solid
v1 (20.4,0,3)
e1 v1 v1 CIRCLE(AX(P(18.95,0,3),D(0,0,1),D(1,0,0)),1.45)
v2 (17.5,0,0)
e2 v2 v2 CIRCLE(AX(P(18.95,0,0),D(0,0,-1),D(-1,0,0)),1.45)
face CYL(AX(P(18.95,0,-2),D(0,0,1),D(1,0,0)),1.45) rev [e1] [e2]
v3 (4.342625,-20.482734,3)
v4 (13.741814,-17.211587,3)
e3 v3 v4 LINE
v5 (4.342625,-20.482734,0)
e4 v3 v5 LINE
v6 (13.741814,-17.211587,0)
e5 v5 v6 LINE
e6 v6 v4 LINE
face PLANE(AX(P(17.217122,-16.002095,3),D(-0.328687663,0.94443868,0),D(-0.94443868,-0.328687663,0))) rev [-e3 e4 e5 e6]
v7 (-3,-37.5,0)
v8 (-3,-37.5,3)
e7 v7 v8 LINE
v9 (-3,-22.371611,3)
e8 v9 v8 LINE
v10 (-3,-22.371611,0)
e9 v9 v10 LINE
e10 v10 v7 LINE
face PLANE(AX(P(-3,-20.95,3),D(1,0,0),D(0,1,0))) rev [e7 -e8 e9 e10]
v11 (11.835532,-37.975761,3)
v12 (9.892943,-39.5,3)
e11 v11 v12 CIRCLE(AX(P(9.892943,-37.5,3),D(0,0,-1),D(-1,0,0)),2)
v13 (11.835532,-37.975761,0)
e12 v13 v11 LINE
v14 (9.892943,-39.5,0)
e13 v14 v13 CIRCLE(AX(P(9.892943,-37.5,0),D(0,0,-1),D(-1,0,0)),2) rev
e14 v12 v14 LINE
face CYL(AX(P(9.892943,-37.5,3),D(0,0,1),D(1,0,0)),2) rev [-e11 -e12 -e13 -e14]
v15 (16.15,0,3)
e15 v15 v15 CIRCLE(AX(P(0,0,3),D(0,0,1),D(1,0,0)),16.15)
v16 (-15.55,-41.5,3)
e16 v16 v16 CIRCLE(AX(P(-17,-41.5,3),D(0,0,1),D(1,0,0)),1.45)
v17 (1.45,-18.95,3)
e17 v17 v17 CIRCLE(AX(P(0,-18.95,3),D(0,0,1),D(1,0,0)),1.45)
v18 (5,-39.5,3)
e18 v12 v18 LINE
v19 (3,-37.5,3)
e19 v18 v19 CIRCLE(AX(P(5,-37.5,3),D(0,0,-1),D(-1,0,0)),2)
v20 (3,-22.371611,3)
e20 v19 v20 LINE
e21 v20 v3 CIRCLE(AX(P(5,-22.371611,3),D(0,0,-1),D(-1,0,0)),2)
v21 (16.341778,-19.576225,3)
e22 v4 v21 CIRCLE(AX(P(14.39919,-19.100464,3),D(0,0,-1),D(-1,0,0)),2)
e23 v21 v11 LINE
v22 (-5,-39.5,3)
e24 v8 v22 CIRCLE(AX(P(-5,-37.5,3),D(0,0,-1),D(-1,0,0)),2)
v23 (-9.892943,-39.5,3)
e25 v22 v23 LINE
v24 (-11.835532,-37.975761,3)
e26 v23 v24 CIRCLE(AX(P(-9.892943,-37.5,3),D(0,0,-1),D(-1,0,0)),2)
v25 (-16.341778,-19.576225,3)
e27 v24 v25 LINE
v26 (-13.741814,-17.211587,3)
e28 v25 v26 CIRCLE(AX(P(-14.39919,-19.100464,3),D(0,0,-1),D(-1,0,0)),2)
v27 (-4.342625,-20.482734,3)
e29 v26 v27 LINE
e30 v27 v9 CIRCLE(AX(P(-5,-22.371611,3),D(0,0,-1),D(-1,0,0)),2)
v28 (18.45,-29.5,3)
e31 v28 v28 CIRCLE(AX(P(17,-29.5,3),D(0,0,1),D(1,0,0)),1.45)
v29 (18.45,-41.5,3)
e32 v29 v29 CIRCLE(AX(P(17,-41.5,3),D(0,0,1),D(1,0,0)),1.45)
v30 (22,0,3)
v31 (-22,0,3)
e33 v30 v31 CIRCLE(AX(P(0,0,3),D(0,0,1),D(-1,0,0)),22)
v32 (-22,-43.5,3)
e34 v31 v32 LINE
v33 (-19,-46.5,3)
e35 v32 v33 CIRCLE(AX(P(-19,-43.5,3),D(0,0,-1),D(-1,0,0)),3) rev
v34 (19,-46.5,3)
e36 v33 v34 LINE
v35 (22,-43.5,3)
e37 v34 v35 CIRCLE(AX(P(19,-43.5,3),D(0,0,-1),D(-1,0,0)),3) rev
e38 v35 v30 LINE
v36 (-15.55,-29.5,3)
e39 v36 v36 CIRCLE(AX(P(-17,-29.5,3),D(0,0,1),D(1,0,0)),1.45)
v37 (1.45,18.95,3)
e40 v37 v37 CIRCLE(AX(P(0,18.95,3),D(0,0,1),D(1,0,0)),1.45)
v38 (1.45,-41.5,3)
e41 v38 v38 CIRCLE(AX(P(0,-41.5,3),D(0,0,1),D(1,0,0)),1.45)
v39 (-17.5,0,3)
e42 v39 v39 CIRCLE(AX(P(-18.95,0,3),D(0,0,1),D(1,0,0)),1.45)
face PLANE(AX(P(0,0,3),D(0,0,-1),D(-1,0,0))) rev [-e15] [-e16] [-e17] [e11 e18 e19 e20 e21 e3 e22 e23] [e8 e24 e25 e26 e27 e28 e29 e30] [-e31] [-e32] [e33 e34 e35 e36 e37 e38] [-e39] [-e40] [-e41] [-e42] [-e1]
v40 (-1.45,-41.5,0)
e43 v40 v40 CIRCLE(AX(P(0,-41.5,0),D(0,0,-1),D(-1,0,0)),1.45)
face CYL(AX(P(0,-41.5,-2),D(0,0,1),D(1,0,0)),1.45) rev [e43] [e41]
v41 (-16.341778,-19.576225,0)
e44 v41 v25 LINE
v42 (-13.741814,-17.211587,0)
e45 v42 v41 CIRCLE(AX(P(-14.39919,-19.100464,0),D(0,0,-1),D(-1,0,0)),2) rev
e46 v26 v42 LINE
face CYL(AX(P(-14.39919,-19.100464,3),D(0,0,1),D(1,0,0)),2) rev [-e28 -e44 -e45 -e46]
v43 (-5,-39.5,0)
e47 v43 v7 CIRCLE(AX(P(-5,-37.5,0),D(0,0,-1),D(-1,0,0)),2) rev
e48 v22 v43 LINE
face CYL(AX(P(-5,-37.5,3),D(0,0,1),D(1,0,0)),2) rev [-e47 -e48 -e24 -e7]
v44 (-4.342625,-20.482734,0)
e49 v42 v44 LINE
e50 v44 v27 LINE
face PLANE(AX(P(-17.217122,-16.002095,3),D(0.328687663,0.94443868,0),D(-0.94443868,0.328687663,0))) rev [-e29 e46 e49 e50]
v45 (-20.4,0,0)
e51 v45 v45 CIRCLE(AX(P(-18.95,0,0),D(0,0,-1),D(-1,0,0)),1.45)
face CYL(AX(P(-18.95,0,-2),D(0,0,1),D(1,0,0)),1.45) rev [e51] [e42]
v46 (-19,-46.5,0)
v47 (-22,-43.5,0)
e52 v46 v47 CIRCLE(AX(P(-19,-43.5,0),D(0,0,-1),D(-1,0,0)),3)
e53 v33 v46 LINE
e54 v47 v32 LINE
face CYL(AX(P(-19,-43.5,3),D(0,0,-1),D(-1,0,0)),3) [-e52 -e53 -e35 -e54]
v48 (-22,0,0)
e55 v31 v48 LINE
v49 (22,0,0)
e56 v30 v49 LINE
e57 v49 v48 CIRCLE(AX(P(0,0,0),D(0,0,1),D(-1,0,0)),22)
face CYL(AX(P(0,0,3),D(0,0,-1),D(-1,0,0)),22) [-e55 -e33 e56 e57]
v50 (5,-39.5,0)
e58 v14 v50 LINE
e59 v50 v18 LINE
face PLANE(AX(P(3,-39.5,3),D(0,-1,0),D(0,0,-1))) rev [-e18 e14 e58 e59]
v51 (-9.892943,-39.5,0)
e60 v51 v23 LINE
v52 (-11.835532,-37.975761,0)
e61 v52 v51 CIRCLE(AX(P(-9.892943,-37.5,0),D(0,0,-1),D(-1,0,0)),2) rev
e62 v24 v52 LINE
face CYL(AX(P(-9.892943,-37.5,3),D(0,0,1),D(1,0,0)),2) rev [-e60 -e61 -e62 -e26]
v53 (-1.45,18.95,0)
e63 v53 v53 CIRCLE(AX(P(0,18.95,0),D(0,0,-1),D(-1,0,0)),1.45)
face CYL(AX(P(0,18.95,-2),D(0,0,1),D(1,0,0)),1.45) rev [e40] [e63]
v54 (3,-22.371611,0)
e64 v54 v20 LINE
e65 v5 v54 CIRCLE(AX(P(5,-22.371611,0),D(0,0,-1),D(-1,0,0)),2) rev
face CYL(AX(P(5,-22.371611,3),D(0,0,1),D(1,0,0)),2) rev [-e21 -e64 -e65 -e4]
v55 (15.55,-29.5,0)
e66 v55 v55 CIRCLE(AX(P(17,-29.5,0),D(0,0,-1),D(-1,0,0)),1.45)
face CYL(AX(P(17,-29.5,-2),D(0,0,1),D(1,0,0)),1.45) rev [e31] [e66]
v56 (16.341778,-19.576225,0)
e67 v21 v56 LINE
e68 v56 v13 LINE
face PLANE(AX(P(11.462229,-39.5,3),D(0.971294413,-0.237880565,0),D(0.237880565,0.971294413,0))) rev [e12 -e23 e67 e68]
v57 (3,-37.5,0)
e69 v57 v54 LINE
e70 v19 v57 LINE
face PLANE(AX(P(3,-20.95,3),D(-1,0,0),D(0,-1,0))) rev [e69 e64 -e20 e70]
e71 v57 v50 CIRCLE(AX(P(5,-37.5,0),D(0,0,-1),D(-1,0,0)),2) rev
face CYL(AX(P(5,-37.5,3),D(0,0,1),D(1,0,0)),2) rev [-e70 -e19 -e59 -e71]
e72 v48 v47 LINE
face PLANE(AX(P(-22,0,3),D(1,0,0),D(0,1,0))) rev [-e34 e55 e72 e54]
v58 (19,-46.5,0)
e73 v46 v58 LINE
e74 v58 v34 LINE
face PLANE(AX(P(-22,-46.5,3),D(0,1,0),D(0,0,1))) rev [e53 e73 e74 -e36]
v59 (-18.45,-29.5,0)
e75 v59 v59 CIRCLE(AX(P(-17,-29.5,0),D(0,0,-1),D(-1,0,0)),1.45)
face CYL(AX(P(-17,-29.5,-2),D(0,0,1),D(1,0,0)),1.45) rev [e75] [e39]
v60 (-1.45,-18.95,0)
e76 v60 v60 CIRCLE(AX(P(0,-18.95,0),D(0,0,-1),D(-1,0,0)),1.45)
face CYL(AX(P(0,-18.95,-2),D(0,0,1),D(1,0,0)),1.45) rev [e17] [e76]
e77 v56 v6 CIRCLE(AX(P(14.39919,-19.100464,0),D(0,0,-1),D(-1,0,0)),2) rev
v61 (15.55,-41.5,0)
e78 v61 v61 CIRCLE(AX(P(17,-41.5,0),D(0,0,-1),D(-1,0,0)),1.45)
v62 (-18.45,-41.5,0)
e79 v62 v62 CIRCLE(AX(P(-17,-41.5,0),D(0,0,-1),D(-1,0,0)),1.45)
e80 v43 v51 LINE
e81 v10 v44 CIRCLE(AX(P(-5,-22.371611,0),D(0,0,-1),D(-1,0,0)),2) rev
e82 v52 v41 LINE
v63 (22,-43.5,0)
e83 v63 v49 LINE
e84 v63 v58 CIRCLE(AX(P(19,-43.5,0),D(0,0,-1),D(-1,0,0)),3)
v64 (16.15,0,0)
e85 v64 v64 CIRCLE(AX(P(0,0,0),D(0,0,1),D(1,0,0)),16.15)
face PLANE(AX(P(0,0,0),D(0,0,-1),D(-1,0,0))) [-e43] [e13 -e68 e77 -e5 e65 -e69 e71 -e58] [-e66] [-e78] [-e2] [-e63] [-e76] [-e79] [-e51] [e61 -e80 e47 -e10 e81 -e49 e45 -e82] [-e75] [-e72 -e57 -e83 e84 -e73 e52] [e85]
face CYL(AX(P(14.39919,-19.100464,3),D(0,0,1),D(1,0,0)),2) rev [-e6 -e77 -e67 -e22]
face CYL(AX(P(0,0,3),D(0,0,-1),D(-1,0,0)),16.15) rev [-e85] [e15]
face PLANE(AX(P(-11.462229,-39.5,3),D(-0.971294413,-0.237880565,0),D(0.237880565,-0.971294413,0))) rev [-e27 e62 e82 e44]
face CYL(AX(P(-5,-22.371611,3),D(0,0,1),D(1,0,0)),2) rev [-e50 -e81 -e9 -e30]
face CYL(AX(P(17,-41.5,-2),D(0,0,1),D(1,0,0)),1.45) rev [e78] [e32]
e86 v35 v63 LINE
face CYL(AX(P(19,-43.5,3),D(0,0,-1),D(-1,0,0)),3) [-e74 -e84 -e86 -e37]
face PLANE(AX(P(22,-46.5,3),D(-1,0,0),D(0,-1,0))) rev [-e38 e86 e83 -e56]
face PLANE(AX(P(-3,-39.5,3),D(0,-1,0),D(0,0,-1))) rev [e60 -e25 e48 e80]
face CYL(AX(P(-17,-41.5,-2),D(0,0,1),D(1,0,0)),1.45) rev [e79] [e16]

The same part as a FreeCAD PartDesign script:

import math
import FreeCAD as App
import Part
import Sketcher

V = App.Vector


def edges_at(feature, points):
    """Names of the edges that pass closest to the given points."""
    edges = feature.Shape.Edges
    near = lambda p: min(range(len(edges)), key=lambda i: edges[i].distToShape(Part.Vertex(*p))[0])
    return sorted({f"Edge{near(p) + 1}" for p in points})


def add_polygon(sketch, points):
    """Adds a closed chain of lines whose ends are joined by coincident constraints."""
    first, n = sketch.GeometryCount, len(points)
    for a, b in zip(points, points[1:] + points[:1]):
        sketch.addGeometry(Part.LineSegment(App.Vector(*a, 0), App.Vector(*b, 0)), False)
    for i in range(n):
        sketch.addConstraint(Sketcher.Constraint("Coincident", first + i, 2, first + (i + 1) % n, 1))

doc = App.newDocument("Part")
body = doc.addObject("PartDesign::Body", "Body")

# Sketch on XY plane
sketch1 = body.newObject("Sketcher::SketchObject", "Sketch")
sketch1.AttachmentSupport = (doc.getObject("XY_Plane"), [""])
sketch1.MapMode = "FlatFace"
sketch1.addGeometry(Part.LineSegment(V(-22, 0, 0), V(-22, -46, 0)), False)
sketch1.addGeometry(Part.LineSegment(V(-22, -46, 0), V(22, -46, 0)), False)
sketch1.addGeometry(Part.LineSegment(V(22, -46, 0), V(22, 0, 0)), False)
sketch1.addGeometry(Part.ArcOfCircle(Part.Circle(V(0, 0, 0), V(0, 0, 1), 22), math.radians(0), math.radians(180)), False)
sketch1.addGeometry(Part.Circle(V(0, 0, 0), V(0, 0, 1), 16), False)
sketch1.addConstraint(Sketcher.Constraint("Coincident", 0, 2, 1, 1))
sketch1.addConstraint(Sketcher.Constraint("Coincident", 1, 2, 2, 1))
sketch1.addConstraint(Sketcher.Constraint("Tangent", 2, 2, 3, 1))
sketch1.addConstraint(Sketcher.Constraint("Tangent", 3, 2, 0, 1))
sketch1.addConstraint(Sketcher.Constraint("Vertical", 0))
sketch1.addConstraint(Sketcher.Constraint("Horizontal", 1))
sketch1.addConstraint(Sketcher.Constraint("Vertical", 2))
sketch1.addConstraint(Sketcher.Constraint("Coincident", 3, 3, -1, 1))
sketch1.addConstraint(Sketcher.Constraint("Coincident", 4, 3, -1, 1))
sketch1.addConstraint(Sketcher.Constraint("Radius", 3, 22.0))
sketch1.addConstraint(Sketcher.Constraint("Diameter", 4, 32.3))
sketch1.addConstraint(Sketcher.Constraint("DistanceY", 0, 2, 0, 1, 46.5))
pad1 = body.newObject("PartDesign::Pad", "Pad")
pad1.Profile = sketch1
pad1.Length = 3

# Sketch on XY plane
sketch2 = body.newObject("Sketcher::SketchObject", "Sketch001")
sketch2.AttachmentSupport = (doc.getObject("XY_Plane"), [""])
sketch2.MapMode = "FlatFace"
sketch2.AttachmentOffset = App.Placement(V(0, 0, 3), App.Rotation())
sketch2.addGeometry(Part.Circle(V(0, -41.5, 0), V(0, 0, 1), 1.4), False)
sketch2.addGeometry(Part.Circle(V(17, -41.5, 0), V(0, 0, 1), 1.4), False)
sketch2.addGeometry(Part.Circle(V(-17, -41.5, 0), V(0, 0, 1), 1.4), False)
sketch2.addGeometry(Part.Circle(V(0, 18.9, 0), V(0, 0, 1), 1.4), False)
sketch2.addGeometry(Part.Circle(V(18.9, 0, 0), V(0, 0, 1), 1.4), False)
sketch2.addGeometry(Part.Circle(V(0, -18.9, 0), V(0, 0, 1), 1.4), False)
sketch2.addGeometry(Part.Circle(V(-18.9, 0, 0), V(0, 0, 1), 1.4), False)
sketch2.addGeometry(Part.Circle(V(-17, -29.5, 0), V(0, 0, 1), 1.4), False)
sketch2.addGeometry(Part.Circle(V(17, -29.5, 0), V(0, 0, 1), 1.4), False)
sketch2.addConstraint(Sketcher.Constraint("Equal", 0, 1))
sketch2.addConstraint(Sketcher.Constraint("Equal", 1, 2))
sketch2.addConstraint(Sketcher.Constraint("Equal", 2, 3))
sketch2.addConstraint(Sketcher.Constraint("Equal", 3, 4))
sketch2.addConstraint(Sketcher.Constraint("Equal", 4, 5))
sketch2.addConstraint(Sketcher.Constraint("Equal", 5, 6))
sketch2.addConstraint(Sketcher.Constraint("Equal", 6, 7))
sketch2.addConstraint(Sketcher.Constraint("Equal", 7, 8))
sketch2.addConstraint(Sketcher.Constraint("Symmetric", 3, 3, 5, 3, -1, 1))
sketch2.addConstraint(Sketcher.Constraint("Symmetric", 4, 3, 6, 3, -1, 1))
sketch2.addConstraint(Sketcher.Constraint("Symmetric", 1, 3, 2, 3, -2))
sketch2.addConstraint(Sketcher.Constraint("Symmetric", 7, 3, 8, 3, -2))
sketch2.addConstraint(Sketcher.Constraint("PointOnObject", 0, 3, -2))
sketch2.addConstraint(Sketcher.Constraint("PointOnObject", 3, 3, -2))
sketch2.addConstraint(Sketcher.Constraint("PointOnObject", 4, 3, -1))
sketch2.addConstraint(Sketcher.Constraint("Horizontal", 0, 3, 1, 3))
sketch2.addConstraint(Sketcher.Constraint("Vertical", 2, 3, 7, 3))
sketch2.addConstraint(Sketcher.Constraint("Diameter", 0, 2.9))
sketch2.addConstraint(Sketcher.Constraint("DistanceX", -1, 1, 1, 3, 17.0))
sketch2.addConstraint(Sketcher.Constraint("DistanceY", 2, 3, 7, 3, 12.0))
sketch2.addConstraint(Sketcher.Constraint("DistanceY", 0, 3, -1, 1, 41.5))
sketch2.addConstraint(Sketcher.Constraint("DistanceY", 5, 3, 3, 3, 37.9))
sketch2.addConstraint(Sketcher.Constraint("DistanceX", 6, 3, 4, 3, 37.9))
pocket1 = body.newObject("PartDesign::Pocket", "Pocket")
pocket1.Profile = sketch2
pocket1.Length = 5
doc.recompute()

fillet = body.newObject("PartDesign::Fillet", "Fillet")
fillet.Base = (pocket1, edges_at(pocket1, [(22, -46.5, 1.5), (-22, -46.5, 1.5)]))
fillet.Radius = 3

# Sketch on XY plane
sketch3 = body.newObject("Sketcher::SketchObject", "Sketch002")
sketch3.AttachmentSupport = (doc.getObject("XY_Plane"), [""])
sketch3.MapMode = "FlatFace"
add_polygon(sketch3, [(3, -21), (17, -16), (11, -40), (3, -40)])  # lines 0-3
add_polygon(sketch3, [(-17, -16), (-3, -21), (-3, -40), (-11, -40)])  # lines 4-7
sketch3.addConstraint(Sketcher.Constraint("Horizontal", 2))
sketch3.addConstraint(Sketcher.Constraint("Vertical", 3))
sketch3.addConstraint(Sketcher.Constraint("Vertical", 5))
sketch3.addConstraint(Sketcher.Constraint("Horizontal", 6))
sketch3.addConstraint(Sketcher.Constraint("Symmetric", 3, 2, 4, 2, -2))
sketch3.addConstraint(Sketcher.Constraint("Symmetric", 1, 2, 6, 2, -2))
sketch3.addConstraint(Sketcher.Constraint("Symmetric", 0, 2, 7, 2, -2))
sketch3.addConstraint(Sketcher.Constraint("DistanceX", -1, 1, 2, 2, 3.0))
sketch3.addConstraint(Sketcher.Constraint("DistanceY", 3, 1, 3, 2, 18.55))
sketch3.addConstraint(Sketcher.Constraint("DistanceY", 1, 2, -1, 1, 39.5))
sketch3.addConstraint(Sketcher.Constraint("DistanceX", 2, 2, 2, 1, 8.462229))
sketch3.addConstraint(Sketcher.Constraint("Distance", 1, 24.192361))
sketch3.addConstraint(Sketcher.Constraint("DistanceX", -1, 1, 0, 2, 17.217122))
pocket2 = body.newObject("PartDesign::Pocket", "Pocket001")
pocket2.Profile = sketch3
pocket2.Type = "ThroughAll"
pocket2.Reversed = True
doc.recompute()

fillet2 = body.newObject("PartDesign::Fillet", "Fillet001")
fillet2.Base = (pocket2, edges_at(pocket2, [
    (11.462, -39.5, 1.5),
    (17.217, -16.002, 1.5),
    (3, -20.95, 1.5),
    (3, -39.5, 1.5),
    (-3, -39.5, 1.5),
    (-3, -20.95, 1.5),
    (-17.217, -16.002, 1.5),
    (-11.462, -39.5, 1.5),
]))
fillet2.Radius = 2

doc.recompute()
